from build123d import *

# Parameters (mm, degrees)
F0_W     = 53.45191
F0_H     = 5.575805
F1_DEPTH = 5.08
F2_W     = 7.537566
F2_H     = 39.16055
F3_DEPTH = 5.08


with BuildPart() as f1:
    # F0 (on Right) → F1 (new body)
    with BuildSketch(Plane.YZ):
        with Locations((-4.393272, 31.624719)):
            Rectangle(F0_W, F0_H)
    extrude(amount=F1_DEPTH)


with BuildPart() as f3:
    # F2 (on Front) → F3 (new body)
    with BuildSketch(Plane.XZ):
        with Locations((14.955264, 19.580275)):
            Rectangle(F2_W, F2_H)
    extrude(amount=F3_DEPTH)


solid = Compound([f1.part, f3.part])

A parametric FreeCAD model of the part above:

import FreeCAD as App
import Part
import Sketcher
from FreeCAD import Vector
Q = App.Units.Quantity


def add_polygon(sketch, points):
    """Adds a closed chain of lines whose ends are joined by coincident constraints."""
    first, n = sketch.GeometryCount, len(points)
    for a, b in zip(points, points[1:] + points[:1]):
        sketch.addGeometry(Part.LineSegment(App.Vector(*a, 0), App.Vector(*b, 0)), False)
    for i in range(n):
        sketch.addConstraint(Sketcher.Constraint("Coincident", first + i, 2, first + (i + 1) % n, 1))

doc = App.newDocument("Part")
body = doc.addObject("PartDesign::Body", "Body")

# Sketch on YZ plane
sketch1 = doc.addObject("Sketcher::SketchObject", "Sketch")
body.addObject(sketch1)
sketch1.AttachmentSupport = (doc.YZ_Plane, [""])
sketch1.MapMode = "FlatFace"
add_polygon(sketch1, [(-31, 34), (-31, 29), (22, 29), (22, 34)])  # lines 0-3
sketch1.addConstraint([
    Sketcher.Constraint("Vertical", 0),
    Sketcher.Constraint("Horizontal", 1),
    Sketcher.Constraint("Vertical", 2),
    Sketcher.Constraint("Horizontal", 3),
    Sketcher.Constraint("DistanceX", 1, 1, 1, 2, 53.45191),
    Sketcher.Constraint("DistanceY", 0, 2, 0, 1, 5.575805),
    Sketcher.Constraint("DistanceY", -1, 1, 2, 2, 34.412622),
    Sketcher.Constraint("DistanceX", 0, 2, -1, 1, 31.119227),
])
pad1 = doc.addObject("PartDesign::Pad", "Pad")
body.addObject(pad1)
pad1.Profile = sketch1
pad1.Length = Q("0.2 in")
body2 = doc.addObject("PartDesign::Body", "Body001")

# Sketch on XZ plane
sketch2 = doc.addObject("Sketcher::SketchObject", "Sketch001")
body2.addObject(sketch2)
sketch2.AttachmentSupport = (doc.getObject("XZ_Plane001"), [""])
sketch2.MapMode = "FlatFace"
add_polygon(sketch2, [(11, 39), (11, 0), (19, 0), (19, 39)])  # lines 0-3
sketch2.addConstraint([
    Sketcher.Constraint("Vertical", 0),
    Sketcher.Constraint("Horizontal", 1),
    Sketcher.Constraint("Vertical", 2),
    Sketcher.Constraint("Horizontal", 3),
    Sketcher.Constraint("PointOnObject", 0, 2, -1),
    Sketcher.Constraint("DistanceY", 0, 2, 0, 1, 39.16055),
    Sketcher.Constraint("DistanceX", 1, 1, 1, 2, 7.537566),
    Sketcher.Constraint("DistanceX", -1, 1, 0, 2, 11.186481),
])
pad2 = doc.addObject("PartDesign::Pad", "Pad001")
body2.addObject(pad2)
pad2.Profile = sketch2
pad2.Length = Q("0.2 in")

doc.recompute()
